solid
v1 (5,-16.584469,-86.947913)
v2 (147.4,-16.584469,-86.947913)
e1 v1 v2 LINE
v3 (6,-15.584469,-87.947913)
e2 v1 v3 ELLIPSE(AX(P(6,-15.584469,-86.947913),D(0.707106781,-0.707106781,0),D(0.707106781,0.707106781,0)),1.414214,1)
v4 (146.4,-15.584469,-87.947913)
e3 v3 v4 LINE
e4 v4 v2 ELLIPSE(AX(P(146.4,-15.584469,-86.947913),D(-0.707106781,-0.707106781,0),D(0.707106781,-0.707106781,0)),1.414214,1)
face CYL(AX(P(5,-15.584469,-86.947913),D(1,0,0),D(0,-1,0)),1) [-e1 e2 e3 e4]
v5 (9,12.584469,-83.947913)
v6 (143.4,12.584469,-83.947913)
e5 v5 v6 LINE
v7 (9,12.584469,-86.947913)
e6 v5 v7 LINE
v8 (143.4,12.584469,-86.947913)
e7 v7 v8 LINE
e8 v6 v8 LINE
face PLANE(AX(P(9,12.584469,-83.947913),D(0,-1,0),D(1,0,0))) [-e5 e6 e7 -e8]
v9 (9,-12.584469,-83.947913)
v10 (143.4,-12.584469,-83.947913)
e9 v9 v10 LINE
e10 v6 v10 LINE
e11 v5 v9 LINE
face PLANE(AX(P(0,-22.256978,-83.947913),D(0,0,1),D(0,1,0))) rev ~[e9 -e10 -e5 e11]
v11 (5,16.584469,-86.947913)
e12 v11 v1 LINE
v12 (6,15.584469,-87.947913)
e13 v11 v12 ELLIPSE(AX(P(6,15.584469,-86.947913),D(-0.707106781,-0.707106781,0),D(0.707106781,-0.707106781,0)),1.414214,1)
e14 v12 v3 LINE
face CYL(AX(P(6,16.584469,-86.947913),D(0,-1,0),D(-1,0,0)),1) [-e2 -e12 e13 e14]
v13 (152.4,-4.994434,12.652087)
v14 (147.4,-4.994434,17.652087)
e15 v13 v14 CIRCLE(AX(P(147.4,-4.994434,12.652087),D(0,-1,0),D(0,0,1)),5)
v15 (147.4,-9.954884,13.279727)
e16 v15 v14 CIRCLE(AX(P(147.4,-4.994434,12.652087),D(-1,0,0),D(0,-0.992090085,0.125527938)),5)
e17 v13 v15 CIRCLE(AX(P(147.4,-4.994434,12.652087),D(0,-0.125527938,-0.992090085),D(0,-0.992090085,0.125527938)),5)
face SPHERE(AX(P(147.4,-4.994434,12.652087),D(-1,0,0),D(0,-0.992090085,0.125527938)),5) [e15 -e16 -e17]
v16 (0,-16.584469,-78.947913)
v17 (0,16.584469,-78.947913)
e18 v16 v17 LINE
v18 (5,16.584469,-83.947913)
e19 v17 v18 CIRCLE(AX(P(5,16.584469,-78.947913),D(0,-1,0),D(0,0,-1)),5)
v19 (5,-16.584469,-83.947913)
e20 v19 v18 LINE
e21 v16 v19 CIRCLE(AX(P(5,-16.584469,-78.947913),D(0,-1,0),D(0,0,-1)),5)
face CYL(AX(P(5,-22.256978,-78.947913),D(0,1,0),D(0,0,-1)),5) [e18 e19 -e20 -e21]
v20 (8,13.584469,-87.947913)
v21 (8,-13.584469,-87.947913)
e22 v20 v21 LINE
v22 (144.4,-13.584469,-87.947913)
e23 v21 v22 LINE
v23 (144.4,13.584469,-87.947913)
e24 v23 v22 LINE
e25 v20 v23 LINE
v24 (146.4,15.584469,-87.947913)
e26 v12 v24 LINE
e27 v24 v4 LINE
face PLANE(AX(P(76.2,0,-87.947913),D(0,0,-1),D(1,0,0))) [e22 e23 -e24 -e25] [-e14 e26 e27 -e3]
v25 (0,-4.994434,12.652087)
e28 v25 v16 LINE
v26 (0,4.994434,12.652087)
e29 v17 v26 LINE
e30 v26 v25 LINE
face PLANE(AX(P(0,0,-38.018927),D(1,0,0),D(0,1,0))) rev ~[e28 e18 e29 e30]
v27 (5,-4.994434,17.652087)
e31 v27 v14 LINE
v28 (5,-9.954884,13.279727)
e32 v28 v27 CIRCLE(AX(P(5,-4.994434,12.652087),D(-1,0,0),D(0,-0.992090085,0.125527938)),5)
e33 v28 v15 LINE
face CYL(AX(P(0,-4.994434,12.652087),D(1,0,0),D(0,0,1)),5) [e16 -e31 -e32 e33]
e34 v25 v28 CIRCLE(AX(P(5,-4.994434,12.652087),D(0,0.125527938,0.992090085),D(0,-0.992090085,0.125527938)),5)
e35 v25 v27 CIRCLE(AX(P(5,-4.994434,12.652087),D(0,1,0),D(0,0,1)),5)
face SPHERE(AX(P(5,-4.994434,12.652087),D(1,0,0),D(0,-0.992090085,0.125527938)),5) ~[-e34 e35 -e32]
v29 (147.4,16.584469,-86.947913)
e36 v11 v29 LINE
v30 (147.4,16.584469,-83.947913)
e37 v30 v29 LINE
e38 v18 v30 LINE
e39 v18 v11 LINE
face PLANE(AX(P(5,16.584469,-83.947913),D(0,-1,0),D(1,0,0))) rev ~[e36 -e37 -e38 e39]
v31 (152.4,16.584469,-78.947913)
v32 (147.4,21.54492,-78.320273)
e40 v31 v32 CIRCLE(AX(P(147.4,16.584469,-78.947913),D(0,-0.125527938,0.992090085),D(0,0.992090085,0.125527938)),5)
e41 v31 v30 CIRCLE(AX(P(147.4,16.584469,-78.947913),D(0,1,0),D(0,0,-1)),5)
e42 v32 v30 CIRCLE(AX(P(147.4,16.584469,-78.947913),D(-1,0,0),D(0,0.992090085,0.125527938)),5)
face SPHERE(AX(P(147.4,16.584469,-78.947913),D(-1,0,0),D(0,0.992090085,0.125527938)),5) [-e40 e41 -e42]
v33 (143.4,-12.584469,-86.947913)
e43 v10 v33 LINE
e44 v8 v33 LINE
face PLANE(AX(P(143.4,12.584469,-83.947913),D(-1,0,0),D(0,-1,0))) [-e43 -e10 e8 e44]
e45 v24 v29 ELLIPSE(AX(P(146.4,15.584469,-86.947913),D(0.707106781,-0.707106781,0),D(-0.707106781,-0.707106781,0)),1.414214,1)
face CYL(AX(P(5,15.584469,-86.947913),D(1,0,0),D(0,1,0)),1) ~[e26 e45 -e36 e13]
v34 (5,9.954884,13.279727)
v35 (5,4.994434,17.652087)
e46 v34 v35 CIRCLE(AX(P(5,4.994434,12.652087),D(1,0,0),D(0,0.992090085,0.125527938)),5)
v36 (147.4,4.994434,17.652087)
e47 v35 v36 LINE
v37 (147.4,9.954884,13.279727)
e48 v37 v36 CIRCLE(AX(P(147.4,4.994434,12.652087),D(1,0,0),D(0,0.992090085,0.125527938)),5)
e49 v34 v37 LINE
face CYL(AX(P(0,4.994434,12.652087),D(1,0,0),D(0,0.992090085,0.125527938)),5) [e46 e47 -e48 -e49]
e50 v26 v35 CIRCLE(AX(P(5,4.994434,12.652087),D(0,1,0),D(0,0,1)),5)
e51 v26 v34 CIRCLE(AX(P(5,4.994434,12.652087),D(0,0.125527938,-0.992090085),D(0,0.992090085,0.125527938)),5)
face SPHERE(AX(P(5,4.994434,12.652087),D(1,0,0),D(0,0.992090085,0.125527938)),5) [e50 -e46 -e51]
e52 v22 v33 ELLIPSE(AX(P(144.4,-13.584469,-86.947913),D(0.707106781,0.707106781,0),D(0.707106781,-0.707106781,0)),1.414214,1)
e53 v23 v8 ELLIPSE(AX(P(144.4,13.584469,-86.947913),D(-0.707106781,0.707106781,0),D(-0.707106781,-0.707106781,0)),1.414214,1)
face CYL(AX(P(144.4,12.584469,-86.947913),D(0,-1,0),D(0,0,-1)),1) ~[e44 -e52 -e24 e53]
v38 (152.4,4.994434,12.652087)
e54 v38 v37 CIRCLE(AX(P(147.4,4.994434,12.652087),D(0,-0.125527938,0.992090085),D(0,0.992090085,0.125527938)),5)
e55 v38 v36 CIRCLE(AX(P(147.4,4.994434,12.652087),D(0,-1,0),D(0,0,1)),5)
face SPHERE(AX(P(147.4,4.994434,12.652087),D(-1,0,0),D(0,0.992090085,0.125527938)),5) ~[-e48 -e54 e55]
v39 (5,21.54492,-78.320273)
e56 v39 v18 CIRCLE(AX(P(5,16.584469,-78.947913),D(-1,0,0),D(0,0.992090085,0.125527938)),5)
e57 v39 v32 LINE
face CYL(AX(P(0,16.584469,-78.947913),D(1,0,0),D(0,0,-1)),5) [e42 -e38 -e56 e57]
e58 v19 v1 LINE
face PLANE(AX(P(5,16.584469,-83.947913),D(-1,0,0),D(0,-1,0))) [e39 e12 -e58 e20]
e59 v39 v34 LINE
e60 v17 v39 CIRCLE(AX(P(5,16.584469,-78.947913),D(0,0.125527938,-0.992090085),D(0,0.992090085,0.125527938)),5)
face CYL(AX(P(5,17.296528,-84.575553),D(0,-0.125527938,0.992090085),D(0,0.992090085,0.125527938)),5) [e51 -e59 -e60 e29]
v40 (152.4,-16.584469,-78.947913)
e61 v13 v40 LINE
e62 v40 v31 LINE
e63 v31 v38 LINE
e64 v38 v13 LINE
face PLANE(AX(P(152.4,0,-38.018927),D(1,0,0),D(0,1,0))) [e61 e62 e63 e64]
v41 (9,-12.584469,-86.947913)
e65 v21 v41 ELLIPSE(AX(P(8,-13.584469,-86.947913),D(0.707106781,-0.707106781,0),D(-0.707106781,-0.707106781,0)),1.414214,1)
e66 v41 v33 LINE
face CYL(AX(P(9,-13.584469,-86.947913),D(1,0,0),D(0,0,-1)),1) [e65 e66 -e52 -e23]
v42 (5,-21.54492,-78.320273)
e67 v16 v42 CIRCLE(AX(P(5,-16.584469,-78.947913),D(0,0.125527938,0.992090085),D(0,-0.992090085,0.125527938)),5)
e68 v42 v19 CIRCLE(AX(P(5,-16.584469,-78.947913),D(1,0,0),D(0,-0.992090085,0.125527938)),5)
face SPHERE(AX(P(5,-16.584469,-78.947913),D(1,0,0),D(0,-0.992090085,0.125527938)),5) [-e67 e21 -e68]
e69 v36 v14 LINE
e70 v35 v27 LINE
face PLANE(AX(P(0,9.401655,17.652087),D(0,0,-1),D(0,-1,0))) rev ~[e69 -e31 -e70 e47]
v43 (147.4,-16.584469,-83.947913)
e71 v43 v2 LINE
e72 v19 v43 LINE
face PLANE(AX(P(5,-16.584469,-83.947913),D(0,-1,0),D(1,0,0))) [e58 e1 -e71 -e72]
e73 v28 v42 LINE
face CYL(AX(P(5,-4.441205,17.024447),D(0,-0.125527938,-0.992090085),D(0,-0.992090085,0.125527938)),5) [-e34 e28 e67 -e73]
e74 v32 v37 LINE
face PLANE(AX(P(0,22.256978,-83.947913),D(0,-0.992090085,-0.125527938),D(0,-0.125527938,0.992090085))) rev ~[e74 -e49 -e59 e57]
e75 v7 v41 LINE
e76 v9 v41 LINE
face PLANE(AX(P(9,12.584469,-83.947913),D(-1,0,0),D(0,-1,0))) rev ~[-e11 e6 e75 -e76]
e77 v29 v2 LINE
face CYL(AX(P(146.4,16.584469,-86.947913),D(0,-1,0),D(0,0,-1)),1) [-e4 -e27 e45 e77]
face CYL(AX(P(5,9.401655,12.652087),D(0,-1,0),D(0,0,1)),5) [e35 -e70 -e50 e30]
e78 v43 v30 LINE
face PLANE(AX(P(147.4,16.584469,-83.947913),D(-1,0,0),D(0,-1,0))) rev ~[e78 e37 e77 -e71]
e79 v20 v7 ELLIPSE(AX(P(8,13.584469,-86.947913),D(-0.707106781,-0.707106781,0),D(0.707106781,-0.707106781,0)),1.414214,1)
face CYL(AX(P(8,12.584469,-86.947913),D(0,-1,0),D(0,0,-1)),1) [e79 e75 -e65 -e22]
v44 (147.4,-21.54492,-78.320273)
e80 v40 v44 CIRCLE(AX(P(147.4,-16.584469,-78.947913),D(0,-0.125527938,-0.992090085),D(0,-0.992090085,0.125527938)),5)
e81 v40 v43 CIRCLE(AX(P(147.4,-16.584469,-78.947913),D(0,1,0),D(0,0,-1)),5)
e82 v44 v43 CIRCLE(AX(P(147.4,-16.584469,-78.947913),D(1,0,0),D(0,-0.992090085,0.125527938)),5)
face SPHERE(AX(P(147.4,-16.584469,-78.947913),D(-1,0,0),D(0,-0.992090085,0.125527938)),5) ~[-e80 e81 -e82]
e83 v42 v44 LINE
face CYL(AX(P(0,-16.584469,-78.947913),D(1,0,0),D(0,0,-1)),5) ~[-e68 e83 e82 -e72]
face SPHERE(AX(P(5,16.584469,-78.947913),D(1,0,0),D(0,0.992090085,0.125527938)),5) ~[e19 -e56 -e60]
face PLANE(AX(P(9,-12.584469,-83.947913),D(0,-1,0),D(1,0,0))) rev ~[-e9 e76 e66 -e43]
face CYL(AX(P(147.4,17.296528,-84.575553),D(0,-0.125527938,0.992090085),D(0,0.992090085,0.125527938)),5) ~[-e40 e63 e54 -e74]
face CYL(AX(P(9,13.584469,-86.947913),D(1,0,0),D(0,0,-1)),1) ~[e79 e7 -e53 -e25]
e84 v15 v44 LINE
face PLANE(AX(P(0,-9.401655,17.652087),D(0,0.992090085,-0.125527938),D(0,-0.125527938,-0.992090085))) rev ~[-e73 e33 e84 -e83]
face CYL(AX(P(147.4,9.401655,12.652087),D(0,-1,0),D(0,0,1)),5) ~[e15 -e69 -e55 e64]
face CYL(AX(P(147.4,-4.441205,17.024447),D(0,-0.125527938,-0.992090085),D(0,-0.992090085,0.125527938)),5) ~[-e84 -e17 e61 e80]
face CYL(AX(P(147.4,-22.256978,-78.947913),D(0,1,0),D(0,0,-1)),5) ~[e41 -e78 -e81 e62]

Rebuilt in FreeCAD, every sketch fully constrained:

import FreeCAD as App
import Part
import Sketcher

V = App.Vector


def edges_at(feature, points):
    """Names of the edges that pass closest to the given points."""
    edges = feature.Shape.Edges
    near = lambda p: min(range(len(edges)), key=lambda i: edges[i].distToShape(Part.Vertex(*p))[0])
    return sorted({f"Edge{near(p) + 1}" for p in points})

doc = App.newDocument("Part")
body = doc.addObject("PartDesign::Body", "Body")

sketch1 = doc.addObject("Sketcher::SketchObject", "Sketch")
body.addObject(sketch1)
sketch1.AttachmentSupport = (doc.YZ_Plane, [""])
sketch1.MapMode = "FlatFace"
sketch1.addGeometry(Part.LineSegment(V(-22, -84, 0), V(22, -84, 0)), False)
sketch1.addGeometry(Part.LineSegment(V(22, -84, 0), V(9, 18, 0)), False)
sketch1.addGeometry(Part.LineSegment(V(9, 18, 0), V(-9, 18, 0)), False)
sketch1.addGeometry(Part.LineSegment(V(-9, 18, 0), V(-22, -84, 0)), False)
sketch1.addConstraint(Sketcher.Constraint("Coincident", 0, 2, 1, 1))
sketch1.addConstraint(Sketcher.Constraint("Coincident", 1, 2, 2, 1))
sketch1.addConstraint(Sketcher.Constraint("Coincident", 2, 2, 3, 1))
sketch1.addConstraint(Sketcher.Constraint("Coincident", 3, 2, 0, 1))
sketch1.addConstraint(Sketcher.Constraint("Horizontal", 0))
sketch1.addConstraint(Sketcher.Constraint("Horizontal", 2))
sketch1.addConstraint(Sketcher.Constraint("Equal", 1, 3))
sketch1.addConstraint(Sketcher.Constraint("DistanceY", 0, 2, 1, 2, 101.6))
sketch1.addConstraint(Sketcher.Constraint("DistanceX", 2, 2, 2, 1, 18.80331))
sketch1.addConstraint(Sketcher.Constraint("DistanceX", 0, 1, 0, 2, 44.513956))
sketch1.addConstraint(Sketcher.Constraint("DistanceX", -1, 1, 0, 2, 22.256978))
sketch1.addConstraint(Sketcher.Constraint("DistanceY", 0, 2, -1, 1, 83.947913))
pad1 = doc.addObject("PartDesign::Pad", "Pad")
body.addObject(pad1)
pad1.Profile = sketch1
pad1.Length = 152.4
doc.recompute()

fillet = doc.addObject("PartDesign::Fillet", "Fillet")
body.addObject(fillet)
fillet.Base = (pad1, ["Edge1"])
fillet.UseAllEdges = True
fillet.Radius = 5

sketch2 = doc.addObject("Sketcher::SketchObject", "Sketch001")
body.addObject(sketch2)
sketch2.AttachmentSupport = (doc.XY_Plane, [""])
sketch2.MapMode = "FlatFace"
sketch2.AttachmentOffset = App.Placement(V(0, 0, -83.947913), App.Rotation())
sketch2.addGeometry(Part.LineSegment(V(5, -17, 0), V(5, 17, 0)), False)
sketch2.addGeometry(Part.LineSegment(V(5, 17, 0), V(147, 17, 0)), False)
sketch2.addGeometry(Part.LineSegment(V(147, 17, 0), V(147, -17, 0)), False)
sketch2.addGeometry(Part.LineSegment(V(147, -17, 0), V(5, -17, 0)), False)
sketch2.addGeometry(Part.LineSegment(V(143, 13, 0), V(9, 13, 0)), False)
sketch2.addGeometry(Part.LineSegment(V(9, 13, 0), V(9, -13, 0)), False)
sketch2.addGeometry(Part.LineSegment(V(9, -13, 0), V(143, -13, 0)), False)
sketch2.addGeometry(Part.LineSegment(V(143, -13, 0), V(143, 13, 0)), False)
sketch2.addConstraint(Sketcher.Constraint("Coincident", 0, 2, 1, 1))
sketch2.addConstraint(Sketcher.Constraint("Coincident", 1, 2, 2, 1))
sketch2.addConstraint(Sketcher.Constraint("Coincident", 2, 2, 3, 1))
sketch2.addConstraint(Sketcher.Constraint("Coincident", 3, 2, 0, 1))
sketch2.addConstraint(Sketcher.Constraint("Coincident", 4, 2, 5, 1))
sketch2.addConstraint(Sketcher.Constraint("Coincident", 5, 2, 6, 1))
sketch2.addConstraint(Sketcher.Constraint("Coincident", 6, 2, 7, 1))
sketch2.addConstraint(Sketcher.Constraint("Coincident", 7, 2, 4, 1))
sketch2.addConstraint(Sketcher.Constraint("Vertical", 0))
sketch2.addConstraint(Sketcher.Constraint("Horizontal", 1))
sketch2.addConstraint(Sketcher.Constraint("Vertical", 2))
sketch2.addConstraint(Sketcher.Constraint("Horizontal", 3))
sketch2.addConstraint(Sketcher.Constraint("Horizontal", 4))
sketch2.addConstraint(Sketcher.Constraint("Vertical", 5))
sketch2.addConstraint(Sketcher.Constraint("Horizontal", 6))
sketch2.addConstraint(Sketcher.Constraint("Vertical", 7))
sketch2.addConstraint(Sketcher.Constraint("DistanceX", 1, 1, 1, 2, 142.4))
sketch2.addConstraint(Sketcher.Constraint("DistanceX", 4, 2, 4, 1, 134.4))
sketch2.addConstraint(Sketcher.Constraint("DistanceX", -1, 1, 0, 2, 5.0))
sketch2.addConstraint(Sketcher.Constraint("DistanceX", -1, 1, 4, 2, 9.0))
sketch2.addConstraint(Sketcher.Constraint("DistanceY", 4, 2, 0, 2, 4.0))
sketch2.addConstraint(Sketcher.Constraint("DistanceY", 3, 2, 5, 2, 4.0))
sketch2.addConstraint(Sketcher.Constraint("DistanceY", 5, 2, 5, 1, 25.168938))
sketch2.addConstraint(Sketcher.Constraint("DistanceY", -1, 1, 0, 2, 16.584469))
pad2 = doc.addObject("PartDesign::Pad", "Pad001")
body.addObject(pad2)
pad2.Profile = sketch2
pad2.Length = 4
pad2.Reversed = True
doc.recompute()

fillet2 = doc.addObject("PartDesign::Fillet", "Fillet001")
body.addObject(fillet2)
fillet2.Base = (pad2, edges_at(pad2, [
    (147.4, 0, -87.948),
    (76.2, -16.584, -87.948),
    (5, 0, -87.948),
    (76.2, 16.584, -87.948),
    (9, 0, -87.948),
    (76.2, -12.584, -87.948),
    (143.4, 0, -87.948),
    (76.2, 12.584, -87.948),
]))
fillet2.Radius = 1

doc.recompute()
